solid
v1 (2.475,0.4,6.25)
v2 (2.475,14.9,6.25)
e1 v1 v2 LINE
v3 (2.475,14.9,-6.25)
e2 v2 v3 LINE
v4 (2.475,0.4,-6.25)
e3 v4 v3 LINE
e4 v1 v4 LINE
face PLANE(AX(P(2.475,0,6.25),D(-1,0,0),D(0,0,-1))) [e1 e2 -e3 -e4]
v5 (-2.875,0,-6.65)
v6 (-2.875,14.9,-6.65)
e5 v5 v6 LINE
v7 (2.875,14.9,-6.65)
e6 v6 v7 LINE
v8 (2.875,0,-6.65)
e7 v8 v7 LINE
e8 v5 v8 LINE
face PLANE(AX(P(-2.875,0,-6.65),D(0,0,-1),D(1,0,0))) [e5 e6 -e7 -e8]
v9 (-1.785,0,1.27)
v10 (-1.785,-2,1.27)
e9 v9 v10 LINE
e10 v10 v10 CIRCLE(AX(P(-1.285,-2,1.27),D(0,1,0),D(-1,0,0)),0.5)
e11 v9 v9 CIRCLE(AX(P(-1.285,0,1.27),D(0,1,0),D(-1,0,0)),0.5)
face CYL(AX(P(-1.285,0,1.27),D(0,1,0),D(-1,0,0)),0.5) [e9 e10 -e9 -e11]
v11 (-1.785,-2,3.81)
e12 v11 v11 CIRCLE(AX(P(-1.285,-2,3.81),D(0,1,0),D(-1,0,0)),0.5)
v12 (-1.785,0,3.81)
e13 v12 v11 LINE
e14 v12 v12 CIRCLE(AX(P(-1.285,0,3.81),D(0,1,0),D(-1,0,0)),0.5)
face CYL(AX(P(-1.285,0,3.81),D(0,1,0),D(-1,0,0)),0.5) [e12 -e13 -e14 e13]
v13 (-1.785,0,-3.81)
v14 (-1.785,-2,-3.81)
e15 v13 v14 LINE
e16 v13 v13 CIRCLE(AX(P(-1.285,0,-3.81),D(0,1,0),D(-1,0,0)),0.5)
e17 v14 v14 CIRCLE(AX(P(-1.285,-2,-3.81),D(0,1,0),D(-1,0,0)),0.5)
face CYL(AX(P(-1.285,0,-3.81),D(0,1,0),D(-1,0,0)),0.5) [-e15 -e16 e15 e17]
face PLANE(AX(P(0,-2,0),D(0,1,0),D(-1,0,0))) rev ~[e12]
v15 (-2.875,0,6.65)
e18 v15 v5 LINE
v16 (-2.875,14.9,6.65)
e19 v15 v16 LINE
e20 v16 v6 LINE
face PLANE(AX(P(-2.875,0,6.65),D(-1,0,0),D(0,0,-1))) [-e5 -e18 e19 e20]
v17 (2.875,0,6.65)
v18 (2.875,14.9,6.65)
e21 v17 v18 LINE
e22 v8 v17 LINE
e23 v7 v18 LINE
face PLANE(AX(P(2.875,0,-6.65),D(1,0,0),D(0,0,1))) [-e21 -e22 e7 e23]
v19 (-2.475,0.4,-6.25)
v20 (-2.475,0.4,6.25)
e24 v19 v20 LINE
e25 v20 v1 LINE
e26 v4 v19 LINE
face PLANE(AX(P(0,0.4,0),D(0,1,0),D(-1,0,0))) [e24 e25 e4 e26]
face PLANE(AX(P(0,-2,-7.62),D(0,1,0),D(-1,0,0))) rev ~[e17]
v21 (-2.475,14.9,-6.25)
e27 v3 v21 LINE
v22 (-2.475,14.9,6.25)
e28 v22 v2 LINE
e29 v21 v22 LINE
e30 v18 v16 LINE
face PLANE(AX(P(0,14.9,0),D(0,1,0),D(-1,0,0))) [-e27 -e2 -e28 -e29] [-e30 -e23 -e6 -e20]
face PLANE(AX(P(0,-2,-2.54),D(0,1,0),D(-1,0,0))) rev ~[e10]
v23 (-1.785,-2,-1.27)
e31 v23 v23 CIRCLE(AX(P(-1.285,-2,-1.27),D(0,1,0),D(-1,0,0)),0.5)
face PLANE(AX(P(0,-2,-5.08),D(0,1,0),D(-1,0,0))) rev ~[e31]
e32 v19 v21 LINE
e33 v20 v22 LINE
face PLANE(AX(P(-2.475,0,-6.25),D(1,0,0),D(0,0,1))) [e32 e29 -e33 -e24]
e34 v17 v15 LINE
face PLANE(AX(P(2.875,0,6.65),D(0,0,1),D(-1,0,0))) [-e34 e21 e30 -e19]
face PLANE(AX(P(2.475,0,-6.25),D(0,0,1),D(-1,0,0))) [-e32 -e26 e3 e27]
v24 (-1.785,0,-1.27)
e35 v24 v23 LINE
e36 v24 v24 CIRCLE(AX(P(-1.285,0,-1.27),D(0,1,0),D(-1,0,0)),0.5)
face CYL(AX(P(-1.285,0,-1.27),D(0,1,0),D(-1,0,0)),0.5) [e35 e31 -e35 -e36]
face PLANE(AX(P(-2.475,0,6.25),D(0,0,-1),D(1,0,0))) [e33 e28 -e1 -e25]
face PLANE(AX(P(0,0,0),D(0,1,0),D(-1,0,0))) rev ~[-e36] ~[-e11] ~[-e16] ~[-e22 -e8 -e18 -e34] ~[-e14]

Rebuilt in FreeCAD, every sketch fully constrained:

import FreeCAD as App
import Part
import Sketcher
from FreeCAD import Vector


def add_polygon(sketch, points):
    """Adds a closed chain of lines whose ends are joined by coincident constraints."""
    first, n = sketch.GeometryCount, len(points)
    for a, b in zip(points, points[1:] + points[:1]):
        sketch.addGeometry(Part.LineSegment(App.Vector(*a, 0), App.Vector(*b, 0)), False)
    for i in range(n):
        sketch.addConstraint(Sketcher.Constraint("Coincident", first + i, 2, first + (i + 1) % n, 1))

doc = App.newDocument("Part")
params = doc.addObject("Spreadsheet::Sheet", "Params")
for row, (alias, value) in enumerate([
    ("sketch1_height", "13.3 mm"),
    ("sketch1_width", "5.75 mm"),
    ("pad1_length", "14.9 mm"),
    ("sketch2_height", "12.5 mm"),
    ("sketch2_width", "4.95 mm"),
    ("pad2_length", "0.4 mm"),
    ("sketch3_diameter", "1 mm"),
    ("pad3_length", "2 mm"),
    ("linearpattern_pitch", "2.54 mm"),
], start=1):
    params.set(f"A{row}", alias)
    params.set(f"B{row}", "=" + value)
    params.setAlias(f"B{row}", alias)

body = doc.addObject("PartDesign::Body", "Body")

sketch1 = doc.addObject("Sketcher::SketchObject", "Sketch")
body.addObject(sketch1)
sketch1.AttachmentSupport = (doc.XZ_Plane, [""])
sketch1.MapMode = "FlatFace"
add_polygon(sketch1, [(-2.875, 6.65), (2.875, 6.65), (2.875, -6.65), (-2.875, -6.65)])
add_polygon(sketch1, [(-2.475, 6.25), (-2.475, -6.25), (2.475, -6.25), (2.475, 6.25)])
sketch1.addConstraint(Sketcher.Constraint("Horizontal", 0))
sketch1.addConstraint(Sketcher.Constraint("Vertical", 1))
sketch1.addConstraint(Sketcher.Constraint("Horizontal", 2))
sketch1.addConstraint(Sketcher.Constraint("Vertical", 3))
sketch1.addConstraint(Sketcher.Constraint("Vertical", 4))
sketch1.addConstraint(Sketcher.Constraint("Horizontal", 5))
sketch1.addConstraint(Sketcher.Constraint("Vertical", 6))
sketch1.addConstraint(Sketcher.Constraint("Horizontal", 7))
sketch1.addConstraint(Sketcher.Constraint("Symmetric", 0, 2, 2, 2, -1, 1))
sketch1.addConstraint(Sketcher.Constraint("Symmetric", 4, 2, 6, 2, -1, 1))
sketch1.addConstraint(Sketcher.Constraint("DistanceY", 1, 2, 1, 1, 13.3))
sketch1.addConstraint(Sketcher.Constraint("DistanceX", 0, 1, 0, 2, 5.75))
sketch1.addConstraint(Sketcher.Constraint("DistanceX", 2, 2, 4, 2, 0.4))
sketch1.addConstraint(Sketcher.Constraint("DistanceY", 2, 2, 4, 2, 0.4))
sketch1.setExpression("Constraints[18]", "Params.sketch1_height")
sketch1.setExpression("Constraints[19]", "Params.sketch1_width")
pad1 = doc.addObject("PartDesign::Pad", "Pad")
body.addObject(pad1)
pad1.Profile = sketch1
pad1.setExpression("Length", "Params.pad1_length")
pad1.Reversed = True

sketch2 = doc.addObject("Sketcher::SketchObject", "Sketch001")
body.addObject(sketch2)
sketch2.AttachmentSupport = (doc.XZ_Plane, [""])
sketch2.MapMode = "FlatFace"
add_polygon(sketch2, [(2.475, -6.25), (-2.475, -6.25), (-2.475, 6.25), (2.475, 6.25)])
sketch2.addConstraint(Sketcher.Constraint("Horizontal", 0))
sketch2.addConstraint(Sketcher.Constraint("Vertical", 1))
sketch2.addConstraint(Sketcher.Constraint("Horizontal", 2))
sketch2.addConstraint(Sketcher.Constraint("Vertical", 3))
sketch2.addConstraint(Sketcher.Constraint("Symmetric", 0, 2, 2, 2, -1, 1))
sketch2.addConstraint(Sketcher.Constraint("DistanceY", 1, 1, 1, 2, 12.5))
sketch2.addConstraint(Sketcher.Constraint("DistanceX", 0, 2, 0, 1, 4.95))
sketch2.setExpression("Constraints[9]", "Params.sketch2_height")
sketch2.setExpression("Constraints[10]", "Params.sketch2_width")
pad2 = doc.addObject("PartDesign::Pad", "Pad001")
body.addObject(pad2)
pad2.Profile = sketch2
pad2.setExpression("Length", "Params.pad2_length")
pad2.Reversed = True

sketch3 = doc.addObject("Sketcher::SketchObject", "Sketch002")
body.addObject(sketch3)
sketch3.AttachmentSupport = (doc.XZ_Plane, [""])
sketch3.MapMode = "FlatFace"
sketch3.addGeometry(Part.Circle(Vector(-1.285, 3.81, 0), Vector(0, 0, 1), 0.5), False)
sketch3.addConstraint(Sketcher.Constraint("Diameter", 0, 1.0))
sketch3.addConstraint(Sketcher.Constraint("DistanceY", -1, 1, 0, 3, 3.81))
sketch3.addConstraint(Sketcher.Constraint("DistanceX", 0, 3, -1, 1, 1.285))
sketch3.setExpression("Constraints[0]", "Params.sketch3_diameter")
pad3 = doc.addObject("PartDesign::Pad", "Pad002")
body.addObject(pad3)
pad3.Profile = sketch3
pad3.setExpression("Length", "Params.pad3_length")
doc.recompute()

linearpattern = doc.addObject("PartDesign::LinearPattern", "LinearPattern")
body.addObject(linearpattern)
linearpattern.Originals = [pad3]
linearpattern.Direction = (doc.Z_Axis, [""])
linearpattern.Mode = "offset"
linearpattern.setExpression("Offset", "Params.linearpattern_pitch")
linearpattern.Occurrences = 4
linearpattern.Reversed = True
body.Tip = linearpattern

doc.recompute()
